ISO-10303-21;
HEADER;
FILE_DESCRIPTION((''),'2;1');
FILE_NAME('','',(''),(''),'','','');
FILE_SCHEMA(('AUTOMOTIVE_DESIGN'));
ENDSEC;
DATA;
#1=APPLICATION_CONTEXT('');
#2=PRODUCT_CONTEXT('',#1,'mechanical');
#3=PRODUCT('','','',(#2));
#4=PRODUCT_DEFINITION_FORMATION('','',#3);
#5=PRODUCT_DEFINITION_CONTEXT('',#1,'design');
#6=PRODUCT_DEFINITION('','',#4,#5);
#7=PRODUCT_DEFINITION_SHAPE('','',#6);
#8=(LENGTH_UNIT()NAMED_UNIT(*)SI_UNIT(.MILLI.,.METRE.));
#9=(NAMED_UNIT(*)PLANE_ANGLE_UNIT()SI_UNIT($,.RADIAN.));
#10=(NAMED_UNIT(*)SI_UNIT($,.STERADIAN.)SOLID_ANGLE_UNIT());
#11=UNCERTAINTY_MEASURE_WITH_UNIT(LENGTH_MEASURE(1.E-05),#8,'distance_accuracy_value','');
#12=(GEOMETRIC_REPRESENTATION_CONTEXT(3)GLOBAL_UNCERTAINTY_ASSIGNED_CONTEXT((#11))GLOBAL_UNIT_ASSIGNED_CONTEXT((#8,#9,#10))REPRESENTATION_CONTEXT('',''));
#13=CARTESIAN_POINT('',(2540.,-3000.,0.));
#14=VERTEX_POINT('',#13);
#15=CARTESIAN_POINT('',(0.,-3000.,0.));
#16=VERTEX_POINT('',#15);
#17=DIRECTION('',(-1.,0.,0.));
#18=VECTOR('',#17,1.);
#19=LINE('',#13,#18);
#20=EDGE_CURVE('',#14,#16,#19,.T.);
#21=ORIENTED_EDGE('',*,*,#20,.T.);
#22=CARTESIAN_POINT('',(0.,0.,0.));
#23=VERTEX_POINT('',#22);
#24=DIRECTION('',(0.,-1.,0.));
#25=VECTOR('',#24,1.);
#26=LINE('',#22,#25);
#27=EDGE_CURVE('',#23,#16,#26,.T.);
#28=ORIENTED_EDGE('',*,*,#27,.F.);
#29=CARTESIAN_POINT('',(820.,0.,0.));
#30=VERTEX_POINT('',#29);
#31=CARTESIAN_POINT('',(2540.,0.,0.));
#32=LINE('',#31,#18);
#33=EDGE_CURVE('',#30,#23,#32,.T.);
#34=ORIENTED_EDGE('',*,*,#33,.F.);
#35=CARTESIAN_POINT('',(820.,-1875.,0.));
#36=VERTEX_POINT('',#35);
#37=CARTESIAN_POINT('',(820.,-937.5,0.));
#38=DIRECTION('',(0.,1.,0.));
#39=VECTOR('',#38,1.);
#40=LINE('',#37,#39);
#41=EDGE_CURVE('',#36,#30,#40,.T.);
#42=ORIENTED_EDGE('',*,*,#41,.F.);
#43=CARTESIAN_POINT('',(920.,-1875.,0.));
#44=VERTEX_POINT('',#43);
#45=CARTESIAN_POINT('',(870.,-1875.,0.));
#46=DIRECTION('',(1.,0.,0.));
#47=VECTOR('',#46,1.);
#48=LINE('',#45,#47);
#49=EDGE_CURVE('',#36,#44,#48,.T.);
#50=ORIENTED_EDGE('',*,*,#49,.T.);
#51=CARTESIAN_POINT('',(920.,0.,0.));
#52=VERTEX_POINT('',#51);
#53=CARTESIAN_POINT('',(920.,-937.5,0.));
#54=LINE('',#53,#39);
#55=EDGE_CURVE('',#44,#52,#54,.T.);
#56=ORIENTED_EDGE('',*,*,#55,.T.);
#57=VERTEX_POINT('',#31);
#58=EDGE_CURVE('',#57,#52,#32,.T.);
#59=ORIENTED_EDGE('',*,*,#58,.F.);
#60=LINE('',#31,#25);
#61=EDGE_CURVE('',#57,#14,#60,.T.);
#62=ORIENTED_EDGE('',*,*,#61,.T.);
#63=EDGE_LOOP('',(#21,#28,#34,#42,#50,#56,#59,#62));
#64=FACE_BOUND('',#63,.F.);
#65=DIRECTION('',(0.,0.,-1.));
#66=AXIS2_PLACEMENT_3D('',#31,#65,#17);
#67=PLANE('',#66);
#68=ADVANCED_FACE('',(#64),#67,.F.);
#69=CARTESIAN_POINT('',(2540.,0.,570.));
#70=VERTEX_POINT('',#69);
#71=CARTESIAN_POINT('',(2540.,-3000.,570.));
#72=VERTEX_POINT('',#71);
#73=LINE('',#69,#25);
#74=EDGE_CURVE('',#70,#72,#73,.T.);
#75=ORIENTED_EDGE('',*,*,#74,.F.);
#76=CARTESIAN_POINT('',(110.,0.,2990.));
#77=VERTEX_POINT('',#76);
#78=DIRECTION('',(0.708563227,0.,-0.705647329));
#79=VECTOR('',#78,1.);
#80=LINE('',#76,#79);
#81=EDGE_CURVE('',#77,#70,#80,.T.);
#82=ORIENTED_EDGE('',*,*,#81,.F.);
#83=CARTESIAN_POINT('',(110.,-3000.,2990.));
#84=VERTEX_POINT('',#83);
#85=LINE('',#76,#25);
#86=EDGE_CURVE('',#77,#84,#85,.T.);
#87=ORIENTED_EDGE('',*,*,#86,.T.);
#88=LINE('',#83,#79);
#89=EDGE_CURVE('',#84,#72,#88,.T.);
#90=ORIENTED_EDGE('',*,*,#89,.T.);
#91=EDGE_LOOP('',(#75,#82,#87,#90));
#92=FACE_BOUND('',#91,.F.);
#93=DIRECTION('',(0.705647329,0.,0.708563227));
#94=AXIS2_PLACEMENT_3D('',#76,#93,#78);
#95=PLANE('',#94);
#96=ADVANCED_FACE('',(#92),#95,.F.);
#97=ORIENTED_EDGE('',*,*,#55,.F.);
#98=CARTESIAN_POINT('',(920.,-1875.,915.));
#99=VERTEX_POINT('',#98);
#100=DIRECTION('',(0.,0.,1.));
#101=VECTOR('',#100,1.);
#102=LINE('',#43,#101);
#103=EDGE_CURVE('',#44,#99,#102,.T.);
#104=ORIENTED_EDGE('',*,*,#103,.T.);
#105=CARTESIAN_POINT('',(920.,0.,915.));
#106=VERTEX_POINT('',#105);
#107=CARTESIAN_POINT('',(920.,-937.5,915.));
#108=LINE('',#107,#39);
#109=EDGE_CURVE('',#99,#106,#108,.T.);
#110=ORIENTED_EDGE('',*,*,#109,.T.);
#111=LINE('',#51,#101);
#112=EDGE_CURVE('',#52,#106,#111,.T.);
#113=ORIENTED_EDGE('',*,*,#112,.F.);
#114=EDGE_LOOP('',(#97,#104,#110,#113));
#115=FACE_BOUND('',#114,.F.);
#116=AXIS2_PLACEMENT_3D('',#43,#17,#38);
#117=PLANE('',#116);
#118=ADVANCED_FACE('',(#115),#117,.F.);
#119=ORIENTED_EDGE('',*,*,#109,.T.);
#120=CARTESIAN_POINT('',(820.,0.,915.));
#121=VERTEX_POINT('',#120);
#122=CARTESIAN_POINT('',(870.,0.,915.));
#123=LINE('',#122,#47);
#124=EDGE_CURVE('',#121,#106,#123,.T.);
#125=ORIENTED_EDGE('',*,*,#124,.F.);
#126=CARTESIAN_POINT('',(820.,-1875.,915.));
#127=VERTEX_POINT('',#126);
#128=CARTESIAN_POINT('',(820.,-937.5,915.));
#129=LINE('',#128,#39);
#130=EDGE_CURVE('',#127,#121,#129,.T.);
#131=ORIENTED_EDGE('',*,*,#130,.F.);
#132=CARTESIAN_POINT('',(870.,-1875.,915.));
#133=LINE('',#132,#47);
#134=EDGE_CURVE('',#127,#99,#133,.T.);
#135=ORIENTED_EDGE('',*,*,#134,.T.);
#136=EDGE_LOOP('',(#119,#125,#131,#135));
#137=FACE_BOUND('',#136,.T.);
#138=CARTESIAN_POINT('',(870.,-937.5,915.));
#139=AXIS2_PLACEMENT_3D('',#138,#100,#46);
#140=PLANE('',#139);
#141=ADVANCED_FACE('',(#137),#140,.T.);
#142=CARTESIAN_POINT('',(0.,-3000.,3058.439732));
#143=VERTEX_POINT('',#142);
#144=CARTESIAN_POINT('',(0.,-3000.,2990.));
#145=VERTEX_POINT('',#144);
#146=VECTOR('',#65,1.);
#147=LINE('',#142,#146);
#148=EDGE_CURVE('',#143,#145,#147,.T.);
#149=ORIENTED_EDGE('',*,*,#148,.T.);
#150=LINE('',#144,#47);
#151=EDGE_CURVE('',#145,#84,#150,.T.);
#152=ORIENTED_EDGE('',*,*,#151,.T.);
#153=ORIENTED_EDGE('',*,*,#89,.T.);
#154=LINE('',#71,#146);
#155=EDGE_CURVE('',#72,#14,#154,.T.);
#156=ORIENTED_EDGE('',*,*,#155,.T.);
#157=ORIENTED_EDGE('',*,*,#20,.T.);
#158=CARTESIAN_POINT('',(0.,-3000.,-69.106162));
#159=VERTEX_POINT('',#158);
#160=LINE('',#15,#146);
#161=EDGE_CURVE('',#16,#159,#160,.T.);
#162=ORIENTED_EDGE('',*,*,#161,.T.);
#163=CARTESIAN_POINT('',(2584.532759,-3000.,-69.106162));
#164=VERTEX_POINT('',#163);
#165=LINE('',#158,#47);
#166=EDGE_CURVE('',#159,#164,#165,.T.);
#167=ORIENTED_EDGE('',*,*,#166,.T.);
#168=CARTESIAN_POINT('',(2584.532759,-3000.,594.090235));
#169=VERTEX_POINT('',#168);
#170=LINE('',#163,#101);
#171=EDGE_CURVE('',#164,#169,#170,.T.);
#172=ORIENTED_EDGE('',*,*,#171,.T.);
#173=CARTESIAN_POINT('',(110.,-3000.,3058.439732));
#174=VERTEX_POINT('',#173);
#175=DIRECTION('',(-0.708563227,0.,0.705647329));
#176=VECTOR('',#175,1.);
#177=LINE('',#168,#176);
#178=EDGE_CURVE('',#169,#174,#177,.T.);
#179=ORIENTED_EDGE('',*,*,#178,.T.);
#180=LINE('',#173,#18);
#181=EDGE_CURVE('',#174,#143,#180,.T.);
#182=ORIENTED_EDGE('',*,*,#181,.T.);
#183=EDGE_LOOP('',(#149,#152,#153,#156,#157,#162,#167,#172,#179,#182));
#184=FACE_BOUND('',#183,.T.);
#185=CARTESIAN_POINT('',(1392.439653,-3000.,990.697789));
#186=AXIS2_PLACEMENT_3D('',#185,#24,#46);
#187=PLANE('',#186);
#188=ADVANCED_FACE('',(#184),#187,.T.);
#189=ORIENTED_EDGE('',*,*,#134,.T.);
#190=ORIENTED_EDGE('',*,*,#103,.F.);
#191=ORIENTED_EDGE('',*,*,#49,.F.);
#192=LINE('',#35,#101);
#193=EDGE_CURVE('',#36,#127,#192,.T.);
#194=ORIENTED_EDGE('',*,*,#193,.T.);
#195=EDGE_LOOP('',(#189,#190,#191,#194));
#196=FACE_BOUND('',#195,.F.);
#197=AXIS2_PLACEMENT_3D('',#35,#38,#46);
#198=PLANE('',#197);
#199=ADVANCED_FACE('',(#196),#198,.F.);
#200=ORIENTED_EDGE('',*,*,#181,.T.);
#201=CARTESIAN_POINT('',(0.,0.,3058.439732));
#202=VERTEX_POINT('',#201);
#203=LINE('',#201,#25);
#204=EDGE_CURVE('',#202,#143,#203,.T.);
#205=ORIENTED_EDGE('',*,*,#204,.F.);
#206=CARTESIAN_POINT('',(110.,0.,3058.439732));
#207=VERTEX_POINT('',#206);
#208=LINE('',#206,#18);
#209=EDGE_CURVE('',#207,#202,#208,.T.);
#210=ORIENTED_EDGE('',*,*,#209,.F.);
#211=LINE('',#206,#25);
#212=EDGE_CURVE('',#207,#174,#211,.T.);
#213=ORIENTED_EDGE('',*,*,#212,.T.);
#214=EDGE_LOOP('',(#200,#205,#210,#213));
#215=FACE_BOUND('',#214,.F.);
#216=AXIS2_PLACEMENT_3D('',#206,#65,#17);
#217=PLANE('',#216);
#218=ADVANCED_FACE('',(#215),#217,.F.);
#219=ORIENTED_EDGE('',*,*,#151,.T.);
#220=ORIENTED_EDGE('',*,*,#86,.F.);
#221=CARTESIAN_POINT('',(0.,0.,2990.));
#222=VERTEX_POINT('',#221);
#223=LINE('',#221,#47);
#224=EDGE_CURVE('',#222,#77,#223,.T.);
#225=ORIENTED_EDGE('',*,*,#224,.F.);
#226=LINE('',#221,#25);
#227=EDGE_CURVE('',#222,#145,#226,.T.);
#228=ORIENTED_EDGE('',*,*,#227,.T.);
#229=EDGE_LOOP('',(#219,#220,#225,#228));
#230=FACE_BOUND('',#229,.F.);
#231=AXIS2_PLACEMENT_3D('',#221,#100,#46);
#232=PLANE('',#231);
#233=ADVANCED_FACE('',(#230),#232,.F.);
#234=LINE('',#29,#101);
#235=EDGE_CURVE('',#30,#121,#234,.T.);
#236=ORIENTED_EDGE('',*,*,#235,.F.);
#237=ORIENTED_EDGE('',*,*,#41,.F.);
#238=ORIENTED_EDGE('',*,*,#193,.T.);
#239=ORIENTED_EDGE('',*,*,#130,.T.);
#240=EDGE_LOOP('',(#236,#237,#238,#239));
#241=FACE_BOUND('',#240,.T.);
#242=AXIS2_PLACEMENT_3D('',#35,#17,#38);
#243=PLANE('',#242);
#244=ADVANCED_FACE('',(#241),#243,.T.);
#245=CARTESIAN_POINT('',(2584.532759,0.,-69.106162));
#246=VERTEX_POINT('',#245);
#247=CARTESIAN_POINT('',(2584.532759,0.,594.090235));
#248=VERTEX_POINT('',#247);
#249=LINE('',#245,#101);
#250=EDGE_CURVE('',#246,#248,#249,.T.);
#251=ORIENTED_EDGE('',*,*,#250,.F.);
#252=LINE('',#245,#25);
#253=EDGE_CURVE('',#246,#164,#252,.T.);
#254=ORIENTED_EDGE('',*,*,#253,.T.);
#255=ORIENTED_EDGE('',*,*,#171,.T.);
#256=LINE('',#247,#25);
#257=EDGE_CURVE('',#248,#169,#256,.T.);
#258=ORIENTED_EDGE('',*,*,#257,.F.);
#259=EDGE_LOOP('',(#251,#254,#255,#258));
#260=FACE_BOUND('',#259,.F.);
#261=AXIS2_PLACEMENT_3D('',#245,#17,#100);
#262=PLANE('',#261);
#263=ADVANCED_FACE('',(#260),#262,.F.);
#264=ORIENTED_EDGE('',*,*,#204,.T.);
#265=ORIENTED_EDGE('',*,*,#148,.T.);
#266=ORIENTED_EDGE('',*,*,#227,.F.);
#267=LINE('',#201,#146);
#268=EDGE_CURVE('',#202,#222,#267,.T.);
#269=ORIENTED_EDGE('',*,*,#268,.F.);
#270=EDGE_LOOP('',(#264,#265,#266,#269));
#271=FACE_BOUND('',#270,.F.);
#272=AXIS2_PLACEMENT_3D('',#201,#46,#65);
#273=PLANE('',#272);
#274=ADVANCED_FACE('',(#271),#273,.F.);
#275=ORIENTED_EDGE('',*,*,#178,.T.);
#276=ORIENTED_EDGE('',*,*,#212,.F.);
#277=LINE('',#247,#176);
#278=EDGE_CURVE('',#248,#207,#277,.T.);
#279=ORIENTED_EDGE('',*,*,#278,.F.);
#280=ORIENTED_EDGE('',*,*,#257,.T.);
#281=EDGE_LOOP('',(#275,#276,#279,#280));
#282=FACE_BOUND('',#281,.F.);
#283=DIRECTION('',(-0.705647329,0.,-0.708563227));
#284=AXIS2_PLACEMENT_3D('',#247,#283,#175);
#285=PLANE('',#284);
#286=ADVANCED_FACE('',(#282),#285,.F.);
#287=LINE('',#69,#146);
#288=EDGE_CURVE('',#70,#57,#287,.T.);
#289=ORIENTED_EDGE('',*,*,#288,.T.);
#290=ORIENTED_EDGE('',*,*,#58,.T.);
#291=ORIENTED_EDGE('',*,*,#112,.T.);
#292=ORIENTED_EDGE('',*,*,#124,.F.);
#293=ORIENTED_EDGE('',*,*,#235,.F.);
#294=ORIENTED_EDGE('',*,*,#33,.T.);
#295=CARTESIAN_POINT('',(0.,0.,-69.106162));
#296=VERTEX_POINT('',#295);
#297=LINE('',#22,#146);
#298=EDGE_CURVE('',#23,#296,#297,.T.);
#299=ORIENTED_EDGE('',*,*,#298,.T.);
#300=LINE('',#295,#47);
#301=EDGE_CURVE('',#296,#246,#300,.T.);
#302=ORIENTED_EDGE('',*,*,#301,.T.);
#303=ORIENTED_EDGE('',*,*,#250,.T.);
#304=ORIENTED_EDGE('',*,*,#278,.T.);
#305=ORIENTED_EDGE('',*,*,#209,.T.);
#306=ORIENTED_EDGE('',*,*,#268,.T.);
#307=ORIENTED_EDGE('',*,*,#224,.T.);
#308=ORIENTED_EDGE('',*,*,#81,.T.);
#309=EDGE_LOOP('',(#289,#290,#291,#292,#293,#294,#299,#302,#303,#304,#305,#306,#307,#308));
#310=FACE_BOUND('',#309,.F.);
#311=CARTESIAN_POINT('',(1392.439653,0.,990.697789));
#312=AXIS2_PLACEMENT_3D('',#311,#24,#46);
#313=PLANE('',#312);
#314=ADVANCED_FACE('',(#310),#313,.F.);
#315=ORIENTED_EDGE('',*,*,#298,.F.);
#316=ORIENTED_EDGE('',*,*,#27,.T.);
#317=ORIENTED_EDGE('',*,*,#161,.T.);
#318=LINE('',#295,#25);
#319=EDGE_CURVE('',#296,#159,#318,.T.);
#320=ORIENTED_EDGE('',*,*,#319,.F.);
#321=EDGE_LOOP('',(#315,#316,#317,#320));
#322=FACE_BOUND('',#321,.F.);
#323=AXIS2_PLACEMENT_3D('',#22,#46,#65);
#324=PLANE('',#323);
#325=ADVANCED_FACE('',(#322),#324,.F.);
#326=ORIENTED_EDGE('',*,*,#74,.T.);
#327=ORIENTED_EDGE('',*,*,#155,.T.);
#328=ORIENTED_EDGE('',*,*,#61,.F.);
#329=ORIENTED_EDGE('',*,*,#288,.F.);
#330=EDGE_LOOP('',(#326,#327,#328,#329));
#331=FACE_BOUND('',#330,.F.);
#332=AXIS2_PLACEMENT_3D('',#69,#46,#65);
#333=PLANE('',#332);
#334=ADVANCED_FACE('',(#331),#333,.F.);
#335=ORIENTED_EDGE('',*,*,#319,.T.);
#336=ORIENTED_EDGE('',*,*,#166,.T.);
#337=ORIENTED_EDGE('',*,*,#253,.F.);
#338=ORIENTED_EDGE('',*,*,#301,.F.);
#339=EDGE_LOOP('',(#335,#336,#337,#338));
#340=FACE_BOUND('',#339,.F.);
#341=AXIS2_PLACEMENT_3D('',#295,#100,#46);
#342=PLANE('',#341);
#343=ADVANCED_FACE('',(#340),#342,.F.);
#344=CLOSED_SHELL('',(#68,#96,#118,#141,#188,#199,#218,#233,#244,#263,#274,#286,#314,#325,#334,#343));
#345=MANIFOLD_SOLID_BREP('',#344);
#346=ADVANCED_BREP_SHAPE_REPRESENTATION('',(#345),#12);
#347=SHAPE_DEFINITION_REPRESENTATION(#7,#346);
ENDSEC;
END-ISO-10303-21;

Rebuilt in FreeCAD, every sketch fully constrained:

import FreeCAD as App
import Part
import Sketcher

V = App.Vector
Q = App.Units.Quantity


def add_polygon(sketch, points):
    """Adds a closed chain of lines whose ends are joined by coincident constraints."""
    first, n = sketch.GeometryCount, len(points)
    for a, b in zip(points, points[1:] + points[:1]):
        sketch.addGeometry(Part.LineSegment(App.Vector(*a, 0), App.Vector(*b, 0)), False)
    for i in range(n):
        sketch.addConstraint(Sketcher.Constraint("Coincident", first + i, 2, first + (i + 1) % n, 1))

doc = App.newDocument("Part")
params = doc.addObject("Spreadsheet::Sheet", "Params")
for row, (alias, value) in enumerate([
    ("sketch1_width", "2540 mm"),
    ("sketch1_width2", "110 mm"),
    ("sketch1_height", "570 mm"),
    ("pad1_length", "3000 mm"),
    ("sketch2_width", "100 mm"),
    ("sketch2_height", "1875 mm"),
    ("pad2_length", "915 mm"),
], start=1):
    params.set(f"A{row}", alias)
    params.set(f"B{row}", "=" + value)
    params.setAlias(f"B{row}", alias)

body = doc.addObject("PartDesign::Body", "Body")

sketch1 = doc.addObject("Sketcher::SketchObject", "Sketch")
body.addObject(sketch1)
sketch1.AttachmentSupport = (doc.XZ_Plane, [""])
sketch1.MapMode = "FlatFace"
add_polygon(sketch1, [(2540, 0), (0, 0), (0, -69), (2585, -69), (2585, 594), (110, 3058), (0, 3058), (0, 2990), (110, 2990), (2540, 570)])
sketch1.addConstraint(Sketcher.Constraint("Horizontal", 0))
sketch1.addConstraint(Sketcher.Constraint("Vertical", 1))
sketch1.addConstraint(Sketcher.Constraint("Horizontal", 2))
sketch1.addConstraint(Sketcher.Constraint("Vertical", 3))
sketch1.addConstraint(Sketcher.Constraint("Horizontal", 5))
sketch1.addConstraint(Sketcher.Constraint("Vertical", 6))
sketch1.addConstraint(Sketcher.Constraint("Horizontal", 7))
sketch1.addConstraint(Sketcher.Constraint("Vertical", 9))
sketch1.addConstraint(Sketcher.Constraint("Coincident", 0, 2, -1, 1))
sketch1.addConstraint(Sketcher.Constraint("PointOnObject", 5, 2, -2))
sketch1.addConstraint(Sketcher.Constraint("Parallel", 4, 8))
sketch1.addConstraint(Sketcher.Constraint("Vertical", 4, 2, 7, 2))
sketch1.addConstraint(Sketcher.Constraint("DistanceX", 0, 2, 0, 1, Q("2540 mm")))
sketch1.addConstraint(Sketcher.Constraint("DistanceX", 5, 2, 5, 1, Q("110 mm")))
sketch1.addConstraint(Sketcher.Constraint("DistanceY", 9, 2, 9, 1, Q("570 mm")))
sketch1.addConstraint(Sketcher.Constraint("DistanceY", -1, 1, 6, 2, Q("2990 mm")))
sketch1.addConstraint(Sketcher.Constraint("DistanceX", 2, 1, 2, 2, Q("2584.532759 mm")))
sketch1.addConstraint(Sketcher.Constraint("DistanceY", 1, 2, 1, 1, Q("69.106162 mm")))
sketch1.addConstraint(Sketcher.Constraint("DistanceY", 6, 2, 6, 1, Q("68.439732 mm")))
sketch1.setExpression("Constraints[22]", "Params.sketch1_width")
sketch1.setExpression("Constraints[23]", "Params.sketch1_width2")
sketch1.setExpression("Constraints[24]", "Params.sketch1_height")
pad1 = doc.addObject("PartDesign::Pad", "Pad")
body.addObject(pad1)
pad1.Profile = sketch1
pad1.setExpression("Length", "Params.pad1_length")

sketch2 = doc.addObject("Sketcher::SketchObject", "Sketch001")
body.addObject(sketch2)
sketch2.AttachmentSupport = (doc.XY_Plane, [""])
sketch2.MapMode = "FlatFace"
add_polygon(sketch2, [(820, 0), (820, -1875), (920, -1875), (920, 0)])
sketch2.addConstraint(Sketcher.Constraint("Vertical", 0))
sketch2.addConstraint(Sketcher.Constraint("Horizontal", 1))
sketch2.addConstraint(Sketcher.Constraint("Vertical", 2))
sketch2.addConstraint(Sketcher.Constraint("Horizontal", 3))
sketch2.addConstraint(Sketcher.Constraint("PointOnObject", 2, 2, -1))
sketch2.addConstraint(Sketcher.Constraint("DistanceX", 1, 1, 1, 2, Q("100 mm")))
sketch2.addConstraint(Sketcher.Constraint("DistanceY", 0, 2, 0, 1, Q("1875 mm")))
sketch2.addConstraint(Sketcher.Constraint("DistanceX", -1, 1, 0, 2, Q("820 mm")))
sketch2.setExpression("Constraints[9]", "Params.sketch2_width")
sketch2.setExpression("Constraints[10]", "Params.sketch2_height")
pad2 = doc.addObject("PartDesign::Pad", "Pad001")
body.addObject(pad2)
pad2.Profile = sketch2
pad2.setExpression("Length", "Params.pad2_length")

doc.recompute()
